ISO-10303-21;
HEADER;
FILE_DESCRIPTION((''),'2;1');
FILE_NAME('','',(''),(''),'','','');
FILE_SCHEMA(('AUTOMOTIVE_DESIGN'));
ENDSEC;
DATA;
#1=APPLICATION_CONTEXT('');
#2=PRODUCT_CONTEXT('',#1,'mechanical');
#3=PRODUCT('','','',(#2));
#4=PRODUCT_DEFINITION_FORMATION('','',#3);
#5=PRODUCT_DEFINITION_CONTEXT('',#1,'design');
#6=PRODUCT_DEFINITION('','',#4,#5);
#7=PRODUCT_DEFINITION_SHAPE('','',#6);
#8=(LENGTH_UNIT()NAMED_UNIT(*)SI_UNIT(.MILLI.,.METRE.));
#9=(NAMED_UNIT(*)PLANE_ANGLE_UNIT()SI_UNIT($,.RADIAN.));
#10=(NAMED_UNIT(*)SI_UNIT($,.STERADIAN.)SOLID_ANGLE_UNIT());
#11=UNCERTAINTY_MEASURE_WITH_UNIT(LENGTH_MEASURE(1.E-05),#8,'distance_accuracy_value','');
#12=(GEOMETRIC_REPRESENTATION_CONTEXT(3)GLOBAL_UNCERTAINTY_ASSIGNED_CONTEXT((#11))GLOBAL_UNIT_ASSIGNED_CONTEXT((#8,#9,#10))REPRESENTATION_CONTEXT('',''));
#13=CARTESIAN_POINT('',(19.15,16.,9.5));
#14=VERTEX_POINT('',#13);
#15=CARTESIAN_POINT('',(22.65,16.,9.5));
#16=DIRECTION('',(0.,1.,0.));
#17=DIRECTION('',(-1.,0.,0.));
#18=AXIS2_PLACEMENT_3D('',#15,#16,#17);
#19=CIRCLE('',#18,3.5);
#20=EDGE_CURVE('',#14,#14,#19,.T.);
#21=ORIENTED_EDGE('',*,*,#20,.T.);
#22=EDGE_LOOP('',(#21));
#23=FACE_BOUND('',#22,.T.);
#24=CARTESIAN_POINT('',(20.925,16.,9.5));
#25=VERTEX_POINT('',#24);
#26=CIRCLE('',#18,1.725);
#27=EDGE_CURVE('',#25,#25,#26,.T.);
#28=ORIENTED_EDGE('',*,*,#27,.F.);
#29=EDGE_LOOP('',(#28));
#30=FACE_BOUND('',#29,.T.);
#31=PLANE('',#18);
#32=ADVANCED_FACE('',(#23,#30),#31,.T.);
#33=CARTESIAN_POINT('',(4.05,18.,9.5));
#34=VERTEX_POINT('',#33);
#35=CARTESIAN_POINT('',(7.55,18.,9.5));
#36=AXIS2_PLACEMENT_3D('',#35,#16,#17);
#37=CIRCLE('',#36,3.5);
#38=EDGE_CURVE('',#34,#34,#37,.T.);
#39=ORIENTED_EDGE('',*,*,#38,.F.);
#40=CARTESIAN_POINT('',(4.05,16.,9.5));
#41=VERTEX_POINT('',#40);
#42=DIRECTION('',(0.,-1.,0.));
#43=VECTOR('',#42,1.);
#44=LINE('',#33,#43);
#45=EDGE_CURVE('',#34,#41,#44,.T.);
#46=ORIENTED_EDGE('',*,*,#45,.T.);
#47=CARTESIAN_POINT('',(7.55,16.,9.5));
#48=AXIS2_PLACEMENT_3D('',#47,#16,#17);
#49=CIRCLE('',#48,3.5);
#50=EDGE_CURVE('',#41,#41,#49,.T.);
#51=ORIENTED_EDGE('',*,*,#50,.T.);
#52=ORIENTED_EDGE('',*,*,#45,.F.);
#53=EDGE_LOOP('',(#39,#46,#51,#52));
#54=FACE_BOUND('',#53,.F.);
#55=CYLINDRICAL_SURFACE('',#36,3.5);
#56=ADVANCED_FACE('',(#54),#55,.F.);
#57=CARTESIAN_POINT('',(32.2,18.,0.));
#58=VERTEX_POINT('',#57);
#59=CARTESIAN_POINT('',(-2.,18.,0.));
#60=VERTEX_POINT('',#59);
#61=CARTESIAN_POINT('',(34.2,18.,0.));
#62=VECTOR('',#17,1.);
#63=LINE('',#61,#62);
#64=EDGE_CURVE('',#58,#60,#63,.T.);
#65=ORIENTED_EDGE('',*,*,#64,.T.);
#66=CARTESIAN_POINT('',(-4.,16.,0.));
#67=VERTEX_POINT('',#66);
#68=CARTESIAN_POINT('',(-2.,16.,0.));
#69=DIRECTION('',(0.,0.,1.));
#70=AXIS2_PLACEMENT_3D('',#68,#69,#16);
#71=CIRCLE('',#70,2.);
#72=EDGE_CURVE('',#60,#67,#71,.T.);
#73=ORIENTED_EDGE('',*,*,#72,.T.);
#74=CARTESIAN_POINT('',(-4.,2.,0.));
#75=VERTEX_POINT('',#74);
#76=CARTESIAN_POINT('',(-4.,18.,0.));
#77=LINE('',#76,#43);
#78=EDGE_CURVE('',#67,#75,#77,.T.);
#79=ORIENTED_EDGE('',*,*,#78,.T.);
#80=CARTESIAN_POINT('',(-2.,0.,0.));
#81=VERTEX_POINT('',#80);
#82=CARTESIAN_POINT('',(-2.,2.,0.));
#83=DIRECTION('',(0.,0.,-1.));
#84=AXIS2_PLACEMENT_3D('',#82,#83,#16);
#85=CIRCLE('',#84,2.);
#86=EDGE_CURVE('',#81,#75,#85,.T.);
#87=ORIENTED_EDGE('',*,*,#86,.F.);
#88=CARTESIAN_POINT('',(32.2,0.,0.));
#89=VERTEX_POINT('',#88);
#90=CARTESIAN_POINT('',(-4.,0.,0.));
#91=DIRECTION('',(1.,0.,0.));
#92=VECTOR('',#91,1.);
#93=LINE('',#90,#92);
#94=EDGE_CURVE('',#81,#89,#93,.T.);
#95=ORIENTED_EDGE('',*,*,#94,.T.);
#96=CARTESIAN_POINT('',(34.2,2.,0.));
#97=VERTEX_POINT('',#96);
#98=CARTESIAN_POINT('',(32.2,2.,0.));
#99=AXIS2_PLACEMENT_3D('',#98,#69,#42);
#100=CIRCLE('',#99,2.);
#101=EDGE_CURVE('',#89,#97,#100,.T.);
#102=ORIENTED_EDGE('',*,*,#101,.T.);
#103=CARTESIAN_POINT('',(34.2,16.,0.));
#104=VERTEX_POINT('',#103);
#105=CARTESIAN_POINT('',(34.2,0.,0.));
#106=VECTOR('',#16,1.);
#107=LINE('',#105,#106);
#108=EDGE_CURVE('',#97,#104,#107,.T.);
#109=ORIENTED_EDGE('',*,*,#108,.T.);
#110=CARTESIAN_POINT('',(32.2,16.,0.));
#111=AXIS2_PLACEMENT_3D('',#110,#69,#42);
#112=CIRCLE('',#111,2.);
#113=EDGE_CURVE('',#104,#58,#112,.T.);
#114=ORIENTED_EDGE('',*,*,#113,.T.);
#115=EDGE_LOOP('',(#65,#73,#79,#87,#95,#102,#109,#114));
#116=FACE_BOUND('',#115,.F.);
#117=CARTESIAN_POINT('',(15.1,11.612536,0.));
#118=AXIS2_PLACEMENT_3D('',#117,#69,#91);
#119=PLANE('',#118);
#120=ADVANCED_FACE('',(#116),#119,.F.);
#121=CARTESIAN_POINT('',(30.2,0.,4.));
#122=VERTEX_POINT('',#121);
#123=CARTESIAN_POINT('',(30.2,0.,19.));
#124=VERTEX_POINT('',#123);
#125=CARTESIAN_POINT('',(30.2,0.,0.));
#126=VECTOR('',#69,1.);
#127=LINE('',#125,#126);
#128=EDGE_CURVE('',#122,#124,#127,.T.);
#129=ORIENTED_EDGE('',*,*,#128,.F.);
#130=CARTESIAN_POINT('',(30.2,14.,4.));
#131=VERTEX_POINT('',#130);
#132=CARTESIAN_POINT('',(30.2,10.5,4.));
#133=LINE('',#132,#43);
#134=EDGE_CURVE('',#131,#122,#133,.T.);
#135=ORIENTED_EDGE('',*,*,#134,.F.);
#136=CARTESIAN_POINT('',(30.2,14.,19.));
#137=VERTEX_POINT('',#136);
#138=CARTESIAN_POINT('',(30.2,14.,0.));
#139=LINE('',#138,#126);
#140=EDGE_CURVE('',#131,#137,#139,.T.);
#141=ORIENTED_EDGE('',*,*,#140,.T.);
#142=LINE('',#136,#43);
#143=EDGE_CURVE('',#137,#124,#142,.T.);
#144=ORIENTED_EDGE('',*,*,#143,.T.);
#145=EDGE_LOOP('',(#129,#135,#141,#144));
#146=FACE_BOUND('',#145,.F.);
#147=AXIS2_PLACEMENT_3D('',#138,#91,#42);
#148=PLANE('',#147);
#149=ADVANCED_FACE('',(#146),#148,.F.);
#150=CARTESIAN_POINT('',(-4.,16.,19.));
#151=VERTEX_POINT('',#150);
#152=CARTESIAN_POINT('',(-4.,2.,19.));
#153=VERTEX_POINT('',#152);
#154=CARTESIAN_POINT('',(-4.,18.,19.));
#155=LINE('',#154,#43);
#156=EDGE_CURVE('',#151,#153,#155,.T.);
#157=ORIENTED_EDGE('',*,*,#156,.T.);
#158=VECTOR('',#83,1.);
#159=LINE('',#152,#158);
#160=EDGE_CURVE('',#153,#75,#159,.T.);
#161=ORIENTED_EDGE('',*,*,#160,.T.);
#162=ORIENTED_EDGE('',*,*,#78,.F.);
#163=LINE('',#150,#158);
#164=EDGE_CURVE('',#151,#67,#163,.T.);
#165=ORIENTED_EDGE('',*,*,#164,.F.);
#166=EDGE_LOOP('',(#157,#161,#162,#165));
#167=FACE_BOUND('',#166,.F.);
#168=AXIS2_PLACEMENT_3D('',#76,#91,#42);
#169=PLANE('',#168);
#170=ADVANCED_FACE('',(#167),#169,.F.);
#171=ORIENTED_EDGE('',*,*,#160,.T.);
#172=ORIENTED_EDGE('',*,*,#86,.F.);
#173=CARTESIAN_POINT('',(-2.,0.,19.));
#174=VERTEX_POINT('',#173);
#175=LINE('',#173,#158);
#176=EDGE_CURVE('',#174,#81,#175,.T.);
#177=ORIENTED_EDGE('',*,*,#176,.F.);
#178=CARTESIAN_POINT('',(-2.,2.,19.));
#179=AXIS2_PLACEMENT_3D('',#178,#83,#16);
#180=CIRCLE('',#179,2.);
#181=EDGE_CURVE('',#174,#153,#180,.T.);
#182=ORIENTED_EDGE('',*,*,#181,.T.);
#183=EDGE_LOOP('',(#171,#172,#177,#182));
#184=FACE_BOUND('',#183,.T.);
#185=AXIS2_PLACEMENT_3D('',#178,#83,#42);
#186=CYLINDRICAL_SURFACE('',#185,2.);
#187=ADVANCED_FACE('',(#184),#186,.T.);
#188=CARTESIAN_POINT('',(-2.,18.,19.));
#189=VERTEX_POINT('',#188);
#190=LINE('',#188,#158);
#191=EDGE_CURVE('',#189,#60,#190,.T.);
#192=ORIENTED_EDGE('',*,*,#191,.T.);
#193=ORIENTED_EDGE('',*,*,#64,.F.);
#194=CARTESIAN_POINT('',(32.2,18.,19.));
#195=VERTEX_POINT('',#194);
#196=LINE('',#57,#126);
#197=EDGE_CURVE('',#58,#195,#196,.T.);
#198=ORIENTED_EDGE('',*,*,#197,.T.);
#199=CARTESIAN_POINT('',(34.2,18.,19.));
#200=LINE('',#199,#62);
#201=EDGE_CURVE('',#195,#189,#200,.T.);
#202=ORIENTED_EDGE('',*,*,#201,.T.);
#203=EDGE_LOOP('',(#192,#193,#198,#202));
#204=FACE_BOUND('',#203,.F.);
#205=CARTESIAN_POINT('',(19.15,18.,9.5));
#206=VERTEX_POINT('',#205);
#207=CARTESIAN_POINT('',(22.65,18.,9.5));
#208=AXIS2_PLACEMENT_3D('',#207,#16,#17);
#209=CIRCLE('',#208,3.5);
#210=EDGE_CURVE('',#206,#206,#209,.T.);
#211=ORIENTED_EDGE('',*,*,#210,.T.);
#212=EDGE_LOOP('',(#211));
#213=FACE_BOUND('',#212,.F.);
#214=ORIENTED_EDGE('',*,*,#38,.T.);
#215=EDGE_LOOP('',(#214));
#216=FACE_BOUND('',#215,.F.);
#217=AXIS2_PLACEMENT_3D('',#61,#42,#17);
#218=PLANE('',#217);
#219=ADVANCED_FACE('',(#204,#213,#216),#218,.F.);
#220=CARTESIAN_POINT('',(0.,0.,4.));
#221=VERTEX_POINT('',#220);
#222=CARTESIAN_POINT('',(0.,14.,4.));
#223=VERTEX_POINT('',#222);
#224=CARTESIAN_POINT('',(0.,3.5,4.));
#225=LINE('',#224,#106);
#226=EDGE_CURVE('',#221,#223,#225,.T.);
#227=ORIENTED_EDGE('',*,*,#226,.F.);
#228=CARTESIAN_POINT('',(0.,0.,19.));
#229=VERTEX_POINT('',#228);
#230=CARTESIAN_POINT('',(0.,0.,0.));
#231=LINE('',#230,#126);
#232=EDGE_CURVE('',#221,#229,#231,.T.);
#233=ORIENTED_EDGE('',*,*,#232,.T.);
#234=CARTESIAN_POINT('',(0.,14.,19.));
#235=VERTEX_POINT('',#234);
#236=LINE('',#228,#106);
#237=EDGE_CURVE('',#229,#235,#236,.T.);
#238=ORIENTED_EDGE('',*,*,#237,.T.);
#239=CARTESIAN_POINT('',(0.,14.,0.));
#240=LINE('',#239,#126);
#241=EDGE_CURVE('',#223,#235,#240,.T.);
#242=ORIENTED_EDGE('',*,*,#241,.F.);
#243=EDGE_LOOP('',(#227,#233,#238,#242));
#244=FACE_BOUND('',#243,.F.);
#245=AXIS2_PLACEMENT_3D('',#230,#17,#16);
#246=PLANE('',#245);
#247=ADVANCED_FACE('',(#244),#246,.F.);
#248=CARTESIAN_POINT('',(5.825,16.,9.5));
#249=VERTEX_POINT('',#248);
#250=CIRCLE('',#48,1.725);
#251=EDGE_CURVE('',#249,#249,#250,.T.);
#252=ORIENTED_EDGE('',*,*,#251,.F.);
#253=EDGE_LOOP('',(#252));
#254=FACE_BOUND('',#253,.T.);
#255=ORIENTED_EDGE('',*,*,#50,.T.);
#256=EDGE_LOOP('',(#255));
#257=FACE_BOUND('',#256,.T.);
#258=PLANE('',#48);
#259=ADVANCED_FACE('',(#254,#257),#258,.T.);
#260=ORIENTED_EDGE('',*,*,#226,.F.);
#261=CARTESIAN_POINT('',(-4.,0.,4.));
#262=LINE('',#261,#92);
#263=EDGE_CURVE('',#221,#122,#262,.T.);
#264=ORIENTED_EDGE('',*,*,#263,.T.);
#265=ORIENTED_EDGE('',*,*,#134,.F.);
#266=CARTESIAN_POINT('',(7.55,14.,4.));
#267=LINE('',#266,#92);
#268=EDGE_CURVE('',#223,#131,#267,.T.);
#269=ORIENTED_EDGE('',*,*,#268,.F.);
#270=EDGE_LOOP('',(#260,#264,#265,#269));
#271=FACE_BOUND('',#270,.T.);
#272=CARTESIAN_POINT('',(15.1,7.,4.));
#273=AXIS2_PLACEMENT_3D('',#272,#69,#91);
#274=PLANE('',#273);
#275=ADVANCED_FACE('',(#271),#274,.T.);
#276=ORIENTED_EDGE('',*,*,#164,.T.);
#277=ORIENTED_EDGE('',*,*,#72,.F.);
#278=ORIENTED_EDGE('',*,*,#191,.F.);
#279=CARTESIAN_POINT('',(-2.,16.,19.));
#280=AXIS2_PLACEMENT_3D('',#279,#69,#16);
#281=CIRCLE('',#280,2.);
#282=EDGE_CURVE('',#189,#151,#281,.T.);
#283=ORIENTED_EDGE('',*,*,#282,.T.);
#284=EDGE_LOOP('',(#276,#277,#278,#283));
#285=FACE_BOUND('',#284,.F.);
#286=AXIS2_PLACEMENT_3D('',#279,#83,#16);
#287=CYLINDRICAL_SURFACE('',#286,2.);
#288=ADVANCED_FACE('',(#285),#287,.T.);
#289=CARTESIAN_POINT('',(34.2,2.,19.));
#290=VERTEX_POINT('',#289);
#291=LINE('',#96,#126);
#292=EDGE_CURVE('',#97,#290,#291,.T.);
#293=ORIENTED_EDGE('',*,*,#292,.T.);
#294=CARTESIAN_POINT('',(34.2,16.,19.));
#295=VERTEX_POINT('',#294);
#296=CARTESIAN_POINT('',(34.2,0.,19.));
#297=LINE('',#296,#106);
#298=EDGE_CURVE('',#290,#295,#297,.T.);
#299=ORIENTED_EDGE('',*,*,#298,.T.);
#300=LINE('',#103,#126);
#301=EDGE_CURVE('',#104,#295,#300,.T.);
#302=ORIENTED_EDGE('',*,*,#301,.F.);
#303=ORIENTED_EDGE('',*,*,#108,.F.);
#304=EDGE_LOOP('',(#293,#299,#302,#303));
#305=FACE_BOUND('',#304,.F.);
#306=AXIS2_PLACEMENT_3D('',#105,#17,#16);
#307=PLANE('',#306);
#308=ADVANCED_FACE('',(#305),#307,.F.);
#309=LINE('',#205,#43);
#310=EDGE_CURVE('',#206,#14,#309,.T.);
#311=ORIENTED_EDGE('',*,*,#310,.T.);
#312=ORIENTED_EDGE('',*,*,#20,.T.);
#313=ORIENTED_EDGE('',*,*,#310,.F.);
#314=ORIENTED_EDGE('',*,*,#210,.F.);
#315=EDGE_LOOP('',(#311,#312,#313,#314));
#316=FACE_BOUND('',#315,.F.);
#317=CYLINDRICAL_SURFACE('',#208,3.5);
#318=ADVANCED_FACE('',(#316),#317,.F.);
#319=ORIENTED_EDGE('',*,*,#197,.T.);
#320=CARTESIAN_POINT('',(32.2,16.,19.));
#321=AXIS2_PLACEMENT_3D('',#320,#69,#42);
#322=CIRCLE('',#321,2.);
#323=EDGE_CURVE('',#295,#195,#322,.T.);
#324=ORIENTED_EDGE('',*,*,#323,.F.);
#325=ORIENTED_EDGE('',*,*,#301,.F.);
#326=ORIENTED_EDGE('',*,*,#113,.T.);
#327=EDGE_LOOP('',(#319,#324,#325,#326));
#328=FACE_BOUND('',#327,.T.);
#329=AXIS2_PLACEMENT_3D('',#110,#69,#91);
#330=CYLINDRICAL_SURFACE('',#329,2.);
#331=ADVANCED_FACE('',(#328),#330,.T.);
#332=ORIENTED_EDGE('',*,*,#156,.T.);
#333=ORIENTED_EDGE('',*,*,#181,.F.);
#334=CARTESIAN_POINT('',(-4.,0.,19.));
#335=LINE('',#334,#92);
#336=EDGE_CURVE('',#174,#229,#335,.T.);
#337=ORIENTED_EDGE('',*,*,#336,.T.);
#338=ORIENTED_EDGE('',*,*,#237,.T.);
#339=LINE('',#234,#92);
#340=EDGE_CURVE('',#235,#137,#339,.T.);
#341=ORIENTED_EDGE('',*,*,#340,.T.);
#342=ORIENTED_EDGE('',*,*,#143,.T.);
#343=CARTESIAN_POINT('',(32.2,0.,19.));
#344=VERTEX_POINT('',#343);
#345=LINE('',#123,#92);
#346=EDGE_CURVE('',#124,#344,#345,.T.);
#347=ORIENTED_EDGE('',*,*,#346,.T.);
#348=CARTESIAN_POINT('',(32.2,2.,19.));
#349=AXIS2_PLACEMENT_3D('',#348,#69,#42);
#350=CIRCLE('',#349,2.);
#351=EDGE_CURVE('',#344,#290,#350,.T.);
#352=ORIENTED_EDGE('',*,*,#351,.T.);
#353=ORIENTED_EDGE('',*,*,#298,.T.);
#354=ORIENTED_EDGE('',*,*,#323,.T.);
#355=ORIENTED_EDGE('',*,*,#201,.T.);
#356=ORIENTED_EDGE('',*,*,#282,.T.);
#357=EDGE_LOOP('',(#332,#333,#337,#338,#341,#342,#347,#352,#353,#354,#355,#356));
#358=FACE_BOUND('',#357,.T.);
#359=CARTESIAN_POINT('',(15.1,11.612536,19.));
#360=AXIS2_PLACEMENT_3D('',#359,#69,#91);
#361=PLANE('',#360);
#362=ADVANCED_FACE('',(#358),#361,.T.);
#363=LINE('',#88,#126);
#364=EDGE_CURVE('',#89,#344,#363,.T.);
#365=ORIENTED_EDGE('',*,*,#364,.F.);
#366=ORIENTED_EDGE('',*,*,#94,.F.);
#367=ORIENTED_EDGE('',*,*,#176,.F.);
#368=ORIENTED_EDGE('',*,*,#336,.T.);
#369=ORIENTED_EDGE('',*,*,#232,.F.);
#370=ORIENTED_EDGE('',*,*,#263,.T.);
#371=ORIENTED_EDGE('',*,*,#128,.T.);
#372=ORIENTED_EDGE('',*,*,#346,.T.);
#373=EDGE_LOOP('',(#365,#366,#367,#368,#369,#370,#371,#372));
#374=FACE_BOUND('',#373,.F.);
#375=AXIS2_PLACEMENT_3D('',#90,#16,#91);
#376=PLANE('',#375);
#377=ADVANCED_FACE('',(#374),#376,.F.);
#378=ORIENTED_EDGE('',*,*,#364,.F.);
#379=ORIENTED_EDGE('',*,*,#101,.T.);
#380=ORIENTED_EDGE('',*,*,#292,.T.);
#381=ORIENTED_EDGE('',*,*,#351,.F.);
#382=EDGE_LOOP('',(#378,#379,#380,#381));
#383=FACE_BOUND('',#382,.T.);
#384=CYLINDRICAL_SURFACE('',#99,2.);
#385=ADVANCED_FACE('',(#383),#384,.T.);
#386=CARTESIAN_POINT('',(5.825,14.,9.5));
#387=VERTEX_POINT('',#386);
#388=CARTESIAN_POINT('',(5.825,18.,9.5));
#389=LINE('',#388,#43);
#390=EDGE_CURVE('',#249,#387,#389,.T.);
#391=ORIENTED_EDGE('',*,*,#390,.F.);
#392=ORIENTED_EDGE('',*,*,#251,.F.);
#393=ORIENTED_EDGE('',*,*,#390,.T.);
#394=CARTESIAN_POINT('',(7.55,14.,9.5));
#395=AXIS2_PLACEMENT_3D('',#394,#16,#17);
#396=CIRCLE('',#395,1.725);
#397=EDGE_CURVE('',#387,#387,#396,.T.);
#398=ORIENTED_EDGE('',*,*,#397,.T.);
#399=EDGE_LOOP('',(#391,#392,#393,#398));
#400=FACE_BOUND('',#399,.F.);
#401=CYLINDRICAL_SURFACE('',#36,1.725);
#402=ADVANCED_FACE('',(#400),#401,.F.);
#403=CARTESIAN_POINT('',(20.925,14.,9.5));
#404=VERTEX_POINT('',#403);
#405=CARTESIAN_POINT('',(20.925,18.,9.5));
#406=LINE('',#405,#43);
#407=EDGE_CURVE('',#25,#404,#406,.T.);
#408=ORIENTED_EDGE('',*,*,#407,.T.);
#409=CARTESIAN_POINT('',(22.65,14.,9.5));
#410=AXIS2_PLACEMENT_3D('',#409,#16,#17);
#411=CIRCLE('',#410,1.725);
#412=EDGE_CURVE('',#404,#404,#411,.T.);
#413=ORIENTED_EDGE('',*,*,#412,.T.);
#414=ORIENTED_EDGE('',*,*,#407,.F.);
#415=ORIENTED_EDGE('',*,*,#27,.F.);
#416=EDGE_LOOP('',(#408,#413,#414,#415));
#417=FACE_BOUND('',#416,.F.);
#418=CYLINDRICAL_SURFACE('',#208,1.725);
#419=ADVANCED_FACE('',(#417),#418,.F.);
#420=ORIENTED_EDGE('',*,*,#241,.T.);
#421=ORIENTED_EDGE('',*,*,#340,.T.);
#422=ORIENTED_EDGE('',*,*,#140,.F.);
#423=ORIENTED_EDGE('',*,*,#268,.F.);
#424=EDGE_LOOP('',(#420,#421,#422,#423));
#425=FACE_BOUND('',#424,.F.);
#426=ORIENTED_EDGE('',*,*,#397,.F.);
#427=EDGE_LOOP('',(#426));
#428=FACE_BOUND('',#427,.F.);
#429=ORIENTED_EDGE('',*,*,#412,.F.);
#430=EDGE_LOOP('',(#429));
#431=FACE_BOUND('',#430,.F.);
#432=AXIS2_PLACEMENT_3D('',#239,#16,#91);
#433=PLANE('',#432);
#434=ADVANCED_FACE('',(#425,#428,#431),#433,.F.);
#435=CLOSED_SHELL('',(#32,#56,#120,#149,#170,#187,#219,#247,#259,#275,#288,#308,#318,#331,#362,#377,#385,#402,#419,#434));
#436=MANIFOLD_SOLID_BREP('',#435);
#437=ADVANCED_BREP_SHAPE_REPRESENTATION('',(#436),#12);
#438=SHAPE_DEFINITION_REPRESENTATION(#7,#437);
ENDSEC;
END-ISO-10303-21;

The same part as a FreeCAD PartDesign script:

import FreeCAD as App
import Part
import Sketcher
from FreeCAD import Vector
Q = App.Units.Quantity


def edges_at(feature, points):
    """Names of the edges that pass closest to the given points."""
    edges = feature.Shape.Edges
    near = lambda p: min(range(len(edges)), key=lambda i: edges[i].distToShape(Part.Vertex(*p))[0])
    return sorted({f"Edge{near(p) + 1}" for p in points})


def add_polygon(sketch, points):
    """Adds a closed chain of lines whose ends are joined by coincident constraints."""
    first, n = sketch.GeometryCount, len(points)
    for a, b in zip(points, points[1:] + points[:1]):
        sketch.addGeometry(Part.LineSegment(App.Vector(*a, 0), App.Vector(*b, 0)), False)
    for i in range(n):
        sketch.addConstraint(Sketcher.Constraint("Coincident", first + i, 2, first + (i + 1) % n, 1))

doc = App.newDocument("Part")
body = doc.addObject("PartDesign::Body", "Body")

# Sketch on XY plane
sketch1 = body.newObject("Sketcher::SketchObject", "Sketch")
sketch1.AttachmentSupport = (doc.getObject("XY_Plane"), [""])
sketch1.MapMode = "FlatFace"
add_polygon(sketch1, [(-4, 0), (0, 0), (0, 14), (30.2, 14), (30.2, 0), (34.2, 0), (34.2, 18), (-4, 18)])  # lines 0-7
sketch1.addConstraint([
    Sketcher.Constraint("Horizontal", 0),
    Sketcher.Constraint("Vertical", 1),
    Sketcher.Constraint("Horizontal", 2),
    Sketcher.Constraint("Vertical", 3),
    Sketcher.Constraint("Horizontal", 4),
    Sketcher.Constraint("Vertical", 5),
    Sketcher.Constraint("Horizontal", 6),
    Sketcher.Constraint("Vertical", 7),
    Sketcher.Constraint("Coincident", 0, 2, -1, 1),
    Sketcher.Constraint("PointOnObject", 3, 2, -1),
    Sketcher.Constraint("Equal", 0, 4),
    Sketcher.Constraint("DistanceX", 0, 1, 0, 2, Q("4 mm")),
    Sketcher.Constraint("DistanceY", 1, 1, 1, 2, Q("14 mm")),
    Sketcher.Constraint("DistanceY", 5, 1, 5, 2, Q("18 mm")),
    Sketcher.Constraint("DistanceX", 2, 1, 2, 2, Q("30.2 mm")),
])
pad1 = body.newObject("PartDesign::Pad", "Pad")
pad1.Profile = sketch1
pad1.Length = 19

# Sketch on XY plane
sketch2 = body.newObject("Sketcher::SketchObject", "Sketch001")
sketch2.AttachmentSupport = (doc.getObject("XY_Plane"), [""])
sketch2.MapMode = "FlatFace"
add_polygon(sketch2, [(34, 0), (34, 18), (-4, 18), (-4, 0)])  # lines 0-3
sketch2.addConstraint([
    Sketcher.Constraint("Vertical", 0),
    Sketcher.Constraint("Horizontal", 1),
    Sketcher.Constraint("Vertical", 2),
    Sketcher.Constraint("Horizontal", 3),
    Sketcher.Constraint("PointOnObject", 2, 2, -1),
    Sketcher.Constraint("DistanceY", 0, 1, 0, 2, Q("18 mm")),
    Sketcher.Constraint("DistanceX", 1, 2, 1, 1, Q("38.2 mm")),
    Sketcher.Constraint("DistanceX", 1, 2, -1, 1, Q("4 mm")),
])
pad2 = body.newObject("PartDesign::Pad", "Pad001")
pad2.Profile = sketch2
pad2.Length = 4
doc.recompute()

fillet = body.newObject("PartDesign::Fillet", "Fillet")
fillet.Base = (pad2, edges_at(pad2, [
    (-4, 18, 9.5),
    (34.2, 18, 9.5),
    (34.2, 0, 9.5),
    (-4, 0, 9.5),
]))
fillet.Radius = 2

# Sketch on XZ plane
sketch3 = body.newObject("Sketcher::SketchObject", "Sketch002")
sketch3.AttachmentSupport = (doc.getObject("XZ_Plane"), [""])
sketch3.MapMode = "FlatFace"
sketch3.AttachmentOffset = App.Placement(Vector(0, 0, -18), App.Rotation())
sketch3.addGeometry([
    Part.Circle(Vector(7.5, 9.5, 0), Vector(0, 0, 1), 3.5),
    Part.Circle(Vector(7.5, 9.5, 0), Vector(0, 0, 1), 1.7),
    Part.Circle(Vector(22.6, 9.5, 0), Vector(0, 0, 1), 3.5),
    Part.Circle(Vector(22.6, 9.5, 0), Vector(0, 0, 1), 1.7),
], False)
sketch3.addConstraint([
    Sketcher.Constraint("Coincident", 1, 3, 0, 3),
    Sketcher.Constraint("Coincident", 3, 3, 2, 3),
    Sketcher.Constraint("Equal", 0, 2),
    Sketcher.Constraint("Equal", 1, 3),
    Sketcher.Constraint("Horizontal", 1, 3, 2, 3),
    Sketcher.Constraint("Diameter", 0, Q("7 mm")),
    Sketcher.Constraint("Diameter", 1, Q("3.45 mm")),
    Sketcher.Constraint("DistanceY", -1, 1, 0, 3, Q("9.5 mm")),
    Sketcher.Constraint("DistanceX", 0, 3, 2, 3, Q("15.1 mm")),
    Sketcher.Constraint("DistanceX", -1, 1, 0, 3, Q("7.55 mm")),
])
pocket1 = body.newObject("PartDesign::Pocket", "Pocket")
pocket1.Profile = sketch3
pocket1.Length = 2
pocket1.Reversed = True

# Sketch on XZ plane
sketch4 = body.newObject("Sketcher::SketchObject", "Sketch003")
sketch4.AttachmentSupport = (doc.getObject("XZ_Plane"), [""])
sketch4.MapMode = "FlatFace"
sketch4.AttachmentOffset = App.Placement(Vector(0, 0, -18), App.Rotation())
sketch4.addGeometry([
    Part.Circle(Vector(22.6, 9.5, 0), Vector(0, 0, 1), 1.7),
    Part.Circle(Vector(7.5, 9.5, 0), Vector(0, 0, 1), 1.7),
], False)
sketch4.addConstraint([
    Sketcher.Constraint("Equal", 0, 1),
    Sketcher.Constraint("Horizontal", 0, 3, 1, 3),
    Sketcher.Constraint("Diameter", 0, Q("3.45 mm")),
    Sketcher.Constraint("DistanceY", -1, 1, 0, 3, Q("9.5 mm")),
    Sketcher.Constraint("DistanceX", 1, 3, 0, 3, Q("15.1 mm")),
    Sketcher.Constraint("DistanceX", -1, 1, 0, 3, Q("22.65 mm")),
])
pocket2 = body.newObject("PartDesign::Pocket", "Pocket001")
pocket2.Profile = sketch4
pocket2.Type = "ThroughAll"
pocket2.Reversed = True

doc.recompute()
